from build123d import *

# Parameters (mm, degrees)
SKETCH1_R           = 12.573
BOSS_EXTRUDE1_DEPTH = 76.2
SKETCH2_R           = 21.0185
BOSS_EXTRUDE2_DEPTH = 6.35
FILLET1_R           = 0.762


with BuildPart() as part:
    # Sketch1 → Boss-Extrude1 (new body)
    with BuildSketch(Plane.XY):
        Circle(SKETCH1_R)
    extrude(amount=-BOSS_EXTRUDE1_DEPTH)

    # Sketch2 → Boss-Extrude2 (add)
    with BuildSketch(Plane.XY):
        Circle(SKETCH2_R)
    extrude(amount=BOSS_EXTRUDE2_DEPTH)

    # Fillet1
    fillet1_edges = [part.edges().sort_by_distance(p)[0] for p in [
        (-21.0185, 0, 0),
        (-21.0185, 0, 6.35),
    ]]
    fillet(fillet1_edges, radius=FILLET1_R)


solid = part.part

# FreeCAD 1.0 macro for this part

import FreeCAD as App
import Part
import Sketcher
from FreeCAD import Vector
Q = App.Units.Quantity


def edges_at(feature, points):
    """Names of the edges that pass closest to the given points."""
    edges = feature.Shape.Edges
    near = lambda p: min(range(len(edges)), key=lambda i: edges[i].distToShape(Part.Vertex(*p))[0])
    return sorted({f"Edge{near(p) + 1}" for p in points})

doc = App.newDocument("Part")
body = doc.addObject("PartDesign::Body", "Body")

# Sketch on XY plane
sketch1 = doc.addObject("Sketcher::SketchObject", "Sketch")
body.addObject(sketch1)
sketch1.AttachmentSupport = (doc.XY_Plane, [""])
sketch1.MapMode = "FlatFace"
sketch1.addGeometry(Part.Circle(Vector(0, 0, 0), Vector(0, 0, 1), 13), False)
sketch1.addConstraint([
    Sketcher.Constraint("Coincident", 0, 3, -1, 1),
    Sketcher.Constraint("Diameter", 0, Q("0.99 in")),
])
pad1 = doc.addObject("PartDesign::Pad", "Pad")
body.addObject(pad1)
pad1.Profile = sketch1
pad1.Length = Q("3 in")
pad1.Reversed = True

# Sketch on XY plane
sketch2 = doc.addObject("Sketcher::SketchObject", "Sketch001")
body.addObject(sketch2)
sketch2.AttachmentSupport = (doc.XY_Plane, [""])
sketch2.MapMode = "FlatFace"
sketch2.addGeometry(Part.Circle(Vector(0, 0, 0), Vector(0, 0, 1), 21), False)
sketch2.addConstraint([
    Sketcher.Constraint("Coincident", 0, 3, -1, 1),
    Sketcher.Constraint("Diameter", 0, Q("1.655 in")),
])
pad2 = doc.addObject("PartDesign::Pad", "Pad001")
body.addObject(pad2)
pad2.Profile = sketch2
pad2.Length = Q("0.25 in")
doc.recompute()

fillet = doc.addObject("PartDesign::Fillet", "Fillet")
body.addObject(fillet)
fillet.Base = (pad2, edges_at(pad2, [(-21.018, 0, 0), (-21.018, 0, 6.35)]))
fillet.Radius = Q("0.03 in")

doc.recompute()
